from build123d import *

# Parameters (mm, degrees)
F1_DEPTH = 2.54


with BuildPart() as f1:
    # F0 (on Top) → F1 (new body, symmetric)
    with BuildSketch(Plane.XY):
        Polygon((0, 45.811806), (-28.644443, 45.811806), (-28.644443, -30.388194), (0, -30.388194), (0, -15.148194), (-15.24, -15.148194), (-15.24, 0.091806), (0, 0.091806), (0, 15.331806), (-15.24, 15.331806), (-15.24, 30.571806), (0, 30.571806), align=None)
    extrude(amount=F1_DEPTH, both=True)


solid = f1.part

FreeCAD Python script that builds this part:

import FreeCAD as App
import Part
import Sketcher
Q = App.Units.Quantity

doc = App.newDocument("Part")
params = doc.addObject("Spreadsheet::Sheet", "Params")
for row, (alias, value) in enumerate([
    ("sketch1_height", "3 in"),
    ("pad1_length", "0.2 in"),
], start=1):
    params.set(f"A{row}", alias)
    params.set(f"B{row}", "=" + value)
    params.setAlias(f"B{row}", alias)

body = doc.addObject("PartDesign::Body", "Body")

sketch1 = doc.addObject("Sketcher::SketchObject", "Sketch")
body.addObject(sketch1)
sketch1.AttachmentSupport = (doc.XY_Plane, [""])
sketch1.MapMode = "FlatFace"
sketch1.addGeometry([
    Part.LineSegment(App.Vector(0, 45.811806, 0), App.Vector(-28.644443, 45.811806, 0)),
    Part.LineSegment(App.Vector(-28.644443, 45.811806, 0), App.Vector(-28.644443, -30.388194, 0)),
    Part.LineSegment(App.Vector(-28.644443, -30.388194, 0), App.Vector(0, -30.388194, 0)),
    Part.LineSegment(App.Vector(0, -30.388194, 0), App.Vector(0, -15.148194, 0)),
    Part.LineSegment(App.Vector(0, -15.148194, 0), App.Vector(-15.24, -15.148194, 0)),
    Part.LineSegment(App.Vector(-15.24, -15.148194, 0), App.Vector(-15.24, 0.091806, 0)),
    Part.LineSegment(App.Vector(-15.24, 0.091806, 0), App.Vector(0, 0.091806, 0)),
    Part.LineSegment(App.Vector(0, 0.091806, 0), App.Vector(0, 15.331806, 0)),
    Part.LineSegment(App.Vector(0, 15.331806, 0), App.Vector(-15.24, 15.331806, 0)),
    Part.LineSegment(App.Vector(-15.24, 15.331806, 0), App.Vector(-15.24, 30.571806, 0)),
    Part.LineSegment(App.Vector(-15.24, 30.571806, 0), App.Vector(0, 30.571806, 0)),
    Part.LineSegment(App.Vector(0, 30.571806, 0), App.Vector(0, 45.811806, 0)),
], False)
sketch1.addConstraint([
    Sketcher.Constraint("Coincident", 0, 2, 1, 1),
    Sketcher.Constraint("Coincident", 1, 2, 2, 1),
    Sketcher.Constraint("Coincident", 2, 2, 3, 1),
    Sketcher.Constraint("Coincident", 3, 2, 4, 1),
    Sketcher.Constraint("Coincident", 4, 2, 5, 1),
    Sketcher.Constraint("Coincident", 5, 2, 6, 1),
    Sketcher.Constraint("Coincident", 6, 2, 7, 1),
    Sketcher.Constraint("Coincident", 7, 2, 8, 1),
    Sketcher.Constraint("Coincident", 8, 2, 9, 1),
    Sketcher.Constraint("Coincident", 9, 2, 10, 1),
    Sketcher.Constraint("Coincident", 10, 2, 11, 1),
    Sketcher.Constraint("Coincident", 11, 2, 0, 1),
    Sketcher.Constraint("Horizontal", 0),
    Sketcher.Constraint("Vertical", 1),
    Sketcher.Constraint("Horizontal", 2),
    Sketcher.Constraint("Vertical", 3),
    Sketcher.Constraint("Horizontal", 4),
    Sketcher.Constraint("Vertical", 5),
    Sketcher.Constraint("Horizontal", 6),
    Sketcher.Constraint("Vertical", 7),
    Sketcher.Constraint("Horizontal", 8),
    Sketcher.Constraint("Vertical", 9),
    Sketcher.Constraint("Horizontal", 10),
    Sketcher.Constraint("Vertical", 11),
    Sketcher.Constraint("PointOnObject", 2, 2, -2),
    Sketcher.Constraint("PointOnObject", 6, 2, -2),
    Sketcher.Constraint("PointOnObject", 10, 2, -2),
    Sketcher.Constraint("Vertical", 5, 2, 8, 2),
    Sketcher.Constraint("Equal", 10, 3),
    Sketcher.Constraint("Equal", 3, 5),
    Sketcher.Constraint("Equal", 5, 7),
    Sketcher.Constraint("Equal", 7, 9),
    Sketcher.Constraint("Equal", 9, 11),
    Sketcher.Constraint("DistanceY", 1, 2, 1, 1, Q("3 in")),
    Sketcher.Constraint("DistanceX", 0, 2, 0, 1, 28.644443),
    Sketcher.Constraint("DistanceY", -1, 1, 0, 2, 45.811806),
])
sketch1.setExpression("Constraints[33]", "Params.sketch1_height")
pad1 = doc.addObject("PartDesign::Pad", "Pad")
body.addObject(pad1)
pad1.Profile = sketch1
pad1.setExpression("Length", "Params.pad1_length")
pad1.Midplane = True

doc.recompute()
